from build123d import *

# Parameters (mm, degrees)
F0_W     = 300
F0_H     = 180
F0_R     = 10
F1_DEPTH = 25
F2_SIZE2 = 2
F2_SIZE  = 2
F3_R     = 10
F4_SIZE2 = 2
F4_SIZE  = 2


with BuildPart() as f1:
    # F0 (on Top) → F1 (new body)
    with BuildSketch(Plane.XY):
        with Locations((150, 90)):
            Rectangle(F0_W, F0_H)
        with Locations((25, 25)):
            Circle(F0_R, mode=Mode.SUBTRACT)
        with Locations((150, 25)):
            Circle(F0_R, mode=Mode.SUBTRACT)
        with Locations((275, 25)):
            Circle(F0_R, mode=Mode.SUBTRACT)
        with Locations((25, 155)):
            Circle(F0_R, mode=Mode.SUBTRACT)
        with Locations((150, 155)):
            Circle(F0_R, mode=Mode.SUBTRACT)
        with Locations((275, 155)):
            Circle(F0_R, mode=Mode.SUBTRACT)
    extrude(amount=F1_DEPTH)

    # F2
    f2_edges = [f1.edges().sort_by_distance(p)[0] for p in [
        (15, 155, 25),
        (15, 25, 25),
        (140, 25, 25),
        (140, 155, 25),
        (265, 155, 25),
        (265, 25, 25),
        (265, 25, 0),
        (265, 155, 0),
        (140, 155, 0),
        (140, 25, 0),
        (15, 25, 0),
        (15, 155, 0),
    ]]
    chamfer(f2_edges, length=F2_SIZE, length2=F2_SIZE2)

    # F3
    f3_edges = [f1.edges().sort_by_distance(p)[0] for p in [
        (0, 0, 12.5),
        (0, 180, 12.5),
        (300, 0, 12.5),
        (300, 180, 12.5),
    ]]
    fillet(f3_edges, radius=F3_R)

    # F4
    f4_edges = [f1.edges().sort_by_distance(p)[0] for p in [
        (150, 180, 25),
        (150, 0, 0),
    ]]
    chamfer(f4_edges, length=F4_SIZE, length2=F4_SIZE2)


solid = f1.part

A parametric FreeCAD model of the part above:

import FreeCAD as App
import Part
import Sketcher


def edges_at(feature, points):
    """Names of the edges that pass closest to the given points."""
    edges = feature.Shape.Edges
    near = lambda p: min(range(len(edges)), key=lambda i: edges[i].distToShape(Part.Vertex(*p))[0])
    return sorted({f"Edge{near(p) + 1}" for p in points})


def add_polygon(sketch, points):
    """Adds a closed chain of lines whose ends are joined by coincident constraints."""
    first, n = sketch.GeometryCount, len(points)
    for a, b in zip(points, points[1:] + points[:1]):
        sketch.addGeometry(Part.LineSegment(App.Vector(*a, 0), App.Vector(*b, 0)), False)
    for i in range(n):
        sketch.addConstraint(Sketcher.Constraint("Coincident", first + i, 2, first + (i + 1) % n, 1))

doc = App.newDocument("Part")
body = doc.addObject("PartDesign::Body", "Body")

# Sketch on XY plane
sketch1 = body.newObject("Sketcher::SketchObject", "Sketch")
sketch1.AttachmentSupport = (doc.getObject("XY_Plane"), [""])
sketch1.MapMode = "FlatFace"
add_polygon(sketch1, [(0, 180), (0, 0), (300, 0), (300, 180)])  # lines 0-3
sketch1.addGeometry(Part.Circle(App.Vector(25, 25, 0), App.Vector(0, 0, 1), 10), False)  # 4
sketch1.addGeometry(Part.Circle(App.Vector(150, 25, 0), App.Vector(0, 0, 1), 10), False)  # 5
sketch1.addGeometry(Part.Circle(App.Vector(275, 25, 0), App.Vector(0, 0, 1), 10), False)  # 6
sketch1.addGeometry(Part.Circle(App.Vector(25, 155, 0), App.Vector(0, 0, 1), 10), False)  # 7
sketch1.addGeometry(Part.Circle(App.Vector(150, 155, 0), App.Vector(0, 0, 1), 10), False)  # 8
sketch1.addGeometry(Part.Circle(App.Vector(275, 155, 0), App.Vector(0, 0, 1), 10), False)  # 9
sketch1.addConstraint([
    Sketcher.Constraint("Vertical", 0),
    Sketcher.Constraint("Horizontal", 1),
    Sketcher.Constraint("Vertical", 2),
    Sketcher.Constraint("Horizontal", 3),
    Sketcher.Constraint("Coincident", 0, 2, -1, 1),
    Sketcher.Constraint("Equal", 4, 5),
    Sketcher.Constraint("Equal", 5, 6),
    Sketcher.Constraint("Equal", 6, 7),
    Sketcher.Constraint("Equal", 7, 8),
    Sketcher.Constraint("Equal", 8, 9),
    Sketcher.Constraint("Horizontal", 4, 3, 5, 3),
    Sketcher.Constraint("Horizontal", 5, 3, 6, 3),
    Sketcher.Constraint("Horizontal", 7, 3, 8, 3),
    Sketcher.Constraint("Horizontal", 8, 3, 9, 3),
    Sketcher.Constraint("Vertical", 4, 3, 7, 3),
    Sketcher.Constraint("Vertical", 5, 3, 8, 3),
    Sketcher.Constraint("Vertical", 6, 3, 9, 3),
    Sketcher.Constraint("Diameter", 4, 20.0),
    Sketcher.Constraint("DistanceX", 1, 1, 1, 2, 300.0),
    Sketcher.Constraint("DistanceY", 0, 2, 0, 1, 180.0),
    Sketcher.Constraint("DistanceX", -1, 1, 4, 3, 25.0),
    Sketcher.Constraint("DistanceY", -1, 1, 4, 3, 25.0),
    Sketcher.Constraint("DistanceX", -1, 1, 5, 3, 150.0),
    Sketcher.Constraint("DistanceX", -1, 1, 6, 3, 275.0),
    Sketcher.Constraint("DistanceY", -1, 1, 7, 3, 155.0),
])
pad1 = body.newObject("PartDesign::Pad", "Pad")
pad1.Profile = sketch1
pad1.Length = 25
doc.recompute()

chamfer = body.newObject("PartDesign::Chamfer", "Chamfer")
chamfer.Base = (pad1, edges_at(pad1, [
    (15, 155, 25),
    (15, 25, 25),
    (140, 25, 25),
    (140, 155, 25),
    (265, 155, 25),
    (265, 25, 25),
    (265, 25, 0),
    (265, 155, 0),
    (140, 155, 0),
    (140, 25, 0),
    (15, 25, 0),
    (15, 155, 0),
]))
chamfer.ChamferType = "Two distances"
chamfer.Size = 2
chamfer.Size2 = 2
doc.recompute()

fillet = body.newObject("PartDesign::Fillet", "Fillet")
fillet.Base = (chamfer, edges_at(chamfer, [
    (0, 0, 12.5),
    (0, 180, 12.5),
    (300, 0, 12.5),
    (300, 180, 12.5),
]))
fillet.Radius = 10
doc.recompute()

chamfer2 = body.newObject("PartDesign::Chamfer", "Chamfer001")
chamfer2.Base = (fillet, edges_at(fillet, [(150, 180, 25), (150, 0, 0)]))
chamfer2.ChamferType = "Two distances"
chamfer2.Size = 2
chamfer2.Size2 = 2

doc.recompute()
